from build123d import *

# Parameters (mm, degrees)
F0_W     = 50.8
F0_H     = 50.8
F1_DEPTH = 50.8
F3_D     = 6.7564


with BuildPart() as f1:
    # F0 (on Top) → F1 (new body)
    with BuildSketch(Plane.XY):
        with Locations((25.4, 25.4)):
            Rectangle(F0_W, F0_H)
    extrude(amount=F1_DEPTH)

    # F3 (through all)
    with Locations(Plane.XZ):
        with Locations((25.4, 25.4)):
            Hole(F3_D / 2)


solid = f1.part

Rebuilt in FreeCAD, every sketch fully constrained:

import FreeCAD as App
import Part
import Sketcher
from FreeCAD import Vector
Q = App.Units.Quantity

doc = App.newDocument("Part")
body = doc.addObject("PartDesign::Body", "Body")

# Sketch on XY plane
sketch1 = doc.addObject("Sketcher::SketchObject", "Sketch")
body.addObject(sketch1)
sketch1.AttachmentSupport = (doc.XY_Plane, [""])
sketch1.MapMode = "FlatFace"
sketch1.addGeometry([
    Part.LineSegment(Vector(0, 51, 0), Vector(0, 0, 0)),
    Part.LineSegment(Vector(0, 0, 0), Vector(51, 0, 0)),
    Part.LineSegment(Vector(51, 0, 0), Vector(51, 51, 0)),
    Part.LineSegment(Vector(51, 51, 0), Vector(0, 51, 0)),
], False)
sketch1.addConstraint([
    Sketcher.Constraint("Coincident", 0, 2, 1, 1),
    Sketcher.Constraint("Coincident", 1, 2, 2, 1),
    Sketcher.Constraint("Coincident", 2, 2, 3, 1),
    Sketcher.Constraint("Coincident", 3, 2, 0, 1),
    Sketcher.Constraint("Vertical", 0),
    Sketcher.Constraint("Horizontal", 1),
    Sketcher.Constraint("Vertical", 2),
    Sketcher.Constraint("Horizontal", 3),
    Sketcher.Constraint("Coincident", 0, 2, -1, 1),
    Sketcher.Constraint("Equal", 3, 0),
    Sketcher.Constraint("DistanceX", 1, 1, 1, 2, Q("2 in")),
])
pad1 = doc.addObject("PartDesign::Pad", "Pad")
body.addObject(pad1)
pad1.Profile = sketch1
pad1.Length = Q("2 in")

# Sketch on XZ plane
sketch2 = doc.addObject("Sketcher::SketchObject", "Sketch001")
body.addObject(sketch2)
sketch2.AttachmentSupport = (doc.XZ_Plane, [""])
sketch2.MapMode = "FlatFace"
sketch2.addGeometry(Part.Circle(Vector(25.4, 25.4, 0), Vector(0, 0, 1), 3.4), False)
sketch2.addConstraint([
    Sketcher.Constraint("Diameter", 0, Q("0.266 in")),
    Sketcher.Constraint("DistanceX", -1, 1, 0, 3, Q("1 in")),
    Sketcher.Constraint("DistanceY", -1, 1, 0, 3, Q("1 in")),
])
doc.recompute()
hole = doc.addObject("PartDesign::Hole", "Hole")
body.addObject(hole)
hole.Profile = sketch2
hole.ThreadType = "None"
hole.Diameter = Q("0.266 in")
hole.DepthType = "ThroughAll"

doc.recompute()
